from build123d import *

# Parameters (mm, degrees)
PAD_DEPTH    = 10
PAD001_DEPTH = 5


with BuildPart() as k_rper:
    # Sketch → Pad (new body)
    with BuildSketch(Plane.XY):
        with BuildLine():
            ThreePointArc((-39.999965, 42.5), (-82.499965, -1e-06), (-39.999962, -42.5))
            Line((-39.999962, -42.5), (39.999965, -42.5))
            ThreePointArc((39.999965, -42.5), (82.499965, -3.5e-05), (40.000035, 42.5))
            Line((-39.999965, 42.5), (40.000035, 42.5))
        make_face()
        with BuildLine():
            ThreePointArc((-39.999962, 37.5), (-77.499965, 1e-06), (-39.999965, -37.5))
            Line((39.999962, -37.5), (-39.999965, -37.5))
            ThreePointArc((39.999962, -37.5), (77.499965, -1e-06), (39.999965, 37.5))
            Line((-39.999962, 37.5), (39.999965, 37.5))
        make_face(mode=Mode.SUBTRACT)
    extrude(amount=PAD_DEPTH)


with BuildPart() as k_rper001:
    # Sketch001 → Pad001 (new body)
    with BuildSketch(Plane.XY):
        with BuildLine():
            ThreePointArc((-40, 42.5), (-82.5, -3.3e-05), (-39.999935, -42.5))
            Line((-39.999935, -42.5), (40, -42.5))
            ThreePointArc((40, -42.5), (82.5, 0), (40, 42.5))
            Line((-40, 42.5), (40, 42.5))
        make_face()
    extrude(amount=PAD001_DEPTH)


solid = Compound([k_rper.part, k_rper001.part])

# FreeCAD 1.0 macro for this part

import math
import FreeCAD as App
import Part
import Sketcher
from FreeCAD import Vector
Q = App.Units.Quantity

doc = App.newDocument("Part")
body = doc.addObject("PartDesign::Body", "Body")

# Sketch on XY plane
sketch1 = body.newObject("Sketcher::SketchObject", "Sketch")
sketch1.AttachmentSupport = (doc.getObject("XY_Plane"), [""])
sketch1.MapMode = "FlatFace"
sketch1.addGeometry([
    Part.ArcOfCircle(Part.Circle(Vector(-39.999965, 0, 0), Vector(0, 0, 1), 42.5), math.radians(90), math.radians(270.000004)),  # 0
    Part.LineSegment(Vector(-39.999962, -42.5, 0), Vector(39.999965, -42.5, 0)),  # 1
    Part.ArcOfCircle(Part.Circle(Vector(39.999965, 0, 0), Vector(0, 0, 1), 42.5), math.radians(-90), math.radians(89.999906)),  # 2
    Part.LineSegment(Vector(40.000035, 42.5, 0), Vector(-39.999965, 42.5, 0)),  # 3
    Part.ArcOfCircle(Part.Circle(Vector(-39.999965, 0, 0), Vector(0, 0, 1), 37.5), math.radians(89.999995), math.radians(270)),  # 4
    Part.LineSegment(Vector(-39.999962, 37.5, 0), Vector(39.999965, 37.5, 0)),  # 5
    Part.ArcOfCircle(Part.Circle(Vector(39.999965, 0, 0), Vector(0, 0, 1), 37.5), math.radians(-90.000005), math.radians(90)),  # 6
    Part.LineSegment(Vector(39.999962, -37.5, 0), Vector(-39.999965, -37.5, 0)),  # 7
], False)
sketch1.addConstraint([
    Sketcher.Constraint("Coincident", 0, 2, 1, 1),
    Sketcher.Constraint("Coincident", 1, 2, 2, 1),
    Sketcher.Constraint("Coincident", 2, 2, 3, 1),
    Sketcher.Constraint("Coincident", 3, 2, 0, 1),
    Sketcher.Constraint("Coincident", 4, 1, 5, 1),
    Sketcher.Constraint("Coincident", 5, 2, 6, 2),
    Sketcher.Constraint("Coincident", 6, 1, 7, 1),
    Sketcher.Constraint("Coincident", 7, 2, 4, 2),
    Sketcher.Constraint("Horizontal", 1),
    Sketcher.Constraint("Horizontal", 3),
    Sketcher.Constraint("Horizontal", 5),
    Sketcher.Constraint("Horizontal", 7),
    Sketcher.Constraint("Coincident", 4, 3, 0, 3),
    Sketcher.Constraint("PointOnObject", 0, 3, -1),
    Sketcher.Constraint("Radius", 0, Q("42.5 mm")),
    Sketcher.Constraint("Radius", 4, Q("37.5 mm")),
    Sketcher.Constraint("DistanceX", 3, 2, 3, 1, Q("80 mm")),
    Sketcher.Constraint("DistanceX", 0, 3, 2, 2, Q("80 mm")),
    Sketcher.Constraint("DistanceX", 1, 1, 1, 2, Q("79.999927 mm")),
    Sketcher.Constraint("DistanceX", 5, 1, 5, 2, Q("79.999927 mm")),
    Sketcher.Constraint("DistanceX", 7, 2, 7, 1, Q("79.999927 mm")),
    Sketcher.Constraint("DistanceX", 0, 2, -1, 1, Q("39.999962 mm")),
    Sketcher.Constraint("DistanceX", 4, 1, -1, 1, Q("39.999962 mm")),
    Sketcher.Constraint("DistanceX", -1, 1, 6, 1, Q("39.999962 mm")),
    Sketcher.Constraint("DistanceX", 0, 3, 2, 3, Q("79.99993 mm")),
    Sketcher.Constraint("DistanceX", 0, 3, 6, 3, Q("79.99993 mm")),
    Sketcher.Constraint("DistanceX", 0, 3, 1, 2, Q("79.99993 mm")),
])
pad1 = body.newObject("PartDesign::Pad", "Pad")
pad1.Profile = sketch1
pad1.Length = 10
body2 = doc.addObject("PartDesign::Body", "Body001")

# Sketch on XY plane
sketch2 = body2.newObject("Sketcher::SketchObject", "Sketch001")
sketch2.AttachmentSupport = (doc.getObject("XY_Plane001"), [""])
sketch2.MapMode = "FlatFace"
sketch2.addGeometry([
    Part.ArcOfCircle(Part.Circle(Vector(-40, 0, 0), Vector(0, 0, 1), 42.5), math.radians(90), math.radians(270.000088)),
    Part.LineSegment(Vector(-39.999935, -42.5, 0), Vector(40, -42.5, 0)),
    Part.ArcOfCircle(Part.Circle(Vector(40, 0, 0), Vector(0, 0, 1), 42.5), math.radians(-90), math.radians(90)),
    Part.LineSegment(Vector(40, 42.5, 0), Vector(-40, 42.5, 0)),
], False)
sketch2.addConstraint([
    Sketcher.Constraint("Coincident", 0, 2, 1, 1),
    Sketcher.Constraint("Coincident", 1, 2, 2, 1),
    Sketcher.Constraint("Coincident", 2, 2, 3, 1),
    Sketcher.Constraint("Coincident", 3, 2, 0, 1),
    Sketcher.Constraint("Horizontal", 1),
    Sketcher.Constraint("Horizontal", 3),
    Sketcher.Constraint("PointOnObject", 0, 3, -1),
    Sketcher.Constraint("Radius", 0, Q("42.5 mm")),
    Sketcher.Constraint("DistanceX", 3, 2, 3, 1, Q("80 mm")),
    Sketcher.Constraint("DistanceX", 0, 3, -1, 1, Q("40 mm")),
    Sketcher.Constraint("DistanceX", -1, 1, 2, 3, Q("40 mm")),
    Sketcher.Constraint("DistanceX", -1, 1, 1, 2, Q("40 mm")),
    Sketcher.Constraint("DistanceX", -1, 1, 2, 2, Q("40 mm")),
    Sketcher.Constraint("DistanceX", 1, 1, 1, 2, Q("79.999935 mm")),
])
pad2 = body2.newObject("PartDesign::Pad", "Pad001")
pad2.Profile = sketch2
pad2.Length = 5

doc.recompute()
